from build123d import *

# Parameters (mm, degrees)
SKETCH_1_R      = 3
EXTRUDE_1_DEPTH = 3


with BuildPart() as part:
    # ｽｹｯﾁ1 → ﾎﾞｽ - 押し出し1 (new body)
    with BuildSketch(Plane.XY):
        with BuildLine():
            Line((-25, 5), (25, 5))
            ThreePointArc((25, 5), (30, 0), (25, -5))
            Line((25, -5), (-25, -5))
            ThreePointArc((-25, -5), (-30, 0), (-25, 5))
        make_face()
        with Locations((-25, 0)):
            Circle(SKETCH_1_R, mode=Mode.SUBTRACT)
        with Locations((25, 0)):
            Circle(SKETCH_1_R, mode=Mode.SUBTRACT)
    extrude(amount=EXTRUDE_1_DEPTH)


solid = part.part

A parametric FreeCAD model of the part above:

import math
import FreeCAD as App
import Part
import Sketcher

doc = App.newDocument("Part")
body = doc.addObject("PartDesign::Body", "Body")

# Sketch on XY plane
sketch1 = body.newObject("Sketcher::SketchObject", "Sketch")
sketch1.AttachmentSupport = (doc.getObject("XY_Plane"), [""])
sketch1.MapMode = "FlatFace"
sketch1.addGeometry(Part.LineSegment(App.Vector(25, 5, 0), App.Vector(-25, 5, 0)), False)
sketch1.addGeometry(Part.ArcOfCircle(Part.Circle(App.Vector(-25, 0, 0), App.Vector(0, 0, 1), 5), math.radians(90), math.radians(270)), False)
sketch1.addGeometry(Part.LineSegment(App.Vector(-25, -5, 0), App.Vector(25, -5, 0)), False)
sketch1.addGeometry(Part.ArcOfCircle(Part.Circle(App.Vector(25, 0, 0), App.Vector(0, 0, 1), 5), math.radians(-90), math.radians(90)), False)
sketch1.addGeometry(Part.Circle(App.Vector(25, 0, 0), App.Vector(0, 0, 1), 3), False)
sketch1.addGeometry(Part.Circle(App.Vector(-25, 0, 0), App.Vector(0, 0, 1), 3), False)
sketch1.addConstraint(Sketcher.Constraint("Tangent", 0, 2, 1, 1))
sketch1.addConstraint(Sketcher.Constraint("Tangent", 1, 2, 2, 1))
sketch1.addConstraint(Sketcher.Constraint("Tangent", 2, 2, 3, 1))
sketch1.addConstraint(Sketcher.Constraint("Tangent", 3, 2, 0, 1))
sketch1.addConstraint(Sketcher.Constraint("Horizontal", 0))
sketch1.addConstraint(Sketcher.Constraint("Horizontal", 2))
sketch1.addConstraint(Sketcher.Constraint("Coincident", 4, 3, 3, 3))
sketch1.addConstraint(Sketcher.Constraint("Coincident", 5, 3, 1, 3))
sketch1.addConstraint(Sketcher.Constraint("Equal", 4, 5))
sketch1.addConstraint(Sketcher.Constraint("Symmetric", 1, 3, 3, 3, -1, 1))
sketch1.addConstraint(Sketcher.Constraint("Diameter", 4, 6.0))
sketch1.addConstraint(Sketcher.Constraint("Radius", 1, 5.0))
sketch1.addConstraint(Sketcher.Constraint("DistanceX", 0, 2, 0, 1, 50.0))
pad1 = body.newObject("PartDesign::Pad", "Pad")
pad1.Profile = sketch1
pad1.Length = 3

doc.recompute()
